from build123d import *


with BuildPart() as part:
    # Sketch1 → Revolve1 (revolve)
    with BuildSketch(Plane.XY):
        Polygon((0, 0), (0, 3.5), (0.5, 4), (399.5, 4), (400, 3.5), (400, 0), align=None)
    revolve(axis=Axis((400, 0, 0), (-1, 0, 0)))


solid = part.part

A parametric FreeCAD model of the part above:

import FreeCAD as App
import Part
import Sketcher

doc = App.newDocument("Part")
body = doc.addObject("PartDesign::Body", "Body")

# Sketch on XY plane
sketch1 = body.newObject("Sketcher::SketchObject", "Sketch")
sketch1.AttachmentSupport = (doc.getObject("XY_Plane"), [""])
sketch1.MapMode = "FlatFace"
sketch1.addGeometry([
    Part.LineSegment(App.Vector(0, 3.5, 0), App.Vector(0, 0, 0)),  # 0
    Part.LineSegment(App.Vector(0, 0, 0), App.Vector(400, 0, 0)),  # 1
    Part.LineSegment(App.Vector(400, 0, 0), App.Vector(400, 3.5, 0)),  # 2
    Part.LineSegment(App.Vector(400, 3.5, 0), App.Vector(399.5, 4, 0)),  # 3
    Part.LineSegment(App.Vector(399.5, 4, 0), App.Vector(0.5, 4, 0)),  # 4
    Part.LineSegment(App.Vector(0.5, 4, 0), App.Vector(0, 3.5, 0)),  # 5
], False)
sketch1.addConstraint([
    Sketcher.Constraint("Coincident", 0, 2, 1, 1),
    Sketcher.Constraint("Coincident", 1, 2, 2, 1),
    Sketcher.Constraint("Coincident", 2, 2, 3, 1),
    Sketcher.Constraint("Coincident", 3, 2, 4, 1),
    Sketcher.Constraint("Coincident", 4, 2, 5, 1),
    Sketcher.Constraint("Coincident", 5, 2, 0, 1),
    Sketcher.Constraint("Vertical", 0),
    Sketcher.Constraint("Horizontal", 1),
    Sketcher.Constraint("Vertical", 2),
    Sketcher.Constraint("Horizontal", 4),
    Sketcher.Constraint("Coincident", 0, 2, -1, 1),
    Sketcher.Constraint("Perpendicular", 3, 5),
    Sketcher.Constraint("Horizontal", 2, 2, 5, 2),
    Sketcher.Constraint("Equal", 3, 5),
    Sketcher.Constraint("DistanceX", 1, 1, 1, 2, 400.0),
    Sketcher.Constraint("DistanceX", 4, 2, 4, 1, 399.0),
    Sketcher.Constraint("DistanceY", 0, 2, 0, 1, 3.5),
])
revolution = body.newObject("PartDesign::Revolution", "Revolution")
revolution.Profile = sketch1
revolution.ReferenceAxis = (sketch1, ["H_Axis"])
revolution.Angle = 360

doc.recompute()
